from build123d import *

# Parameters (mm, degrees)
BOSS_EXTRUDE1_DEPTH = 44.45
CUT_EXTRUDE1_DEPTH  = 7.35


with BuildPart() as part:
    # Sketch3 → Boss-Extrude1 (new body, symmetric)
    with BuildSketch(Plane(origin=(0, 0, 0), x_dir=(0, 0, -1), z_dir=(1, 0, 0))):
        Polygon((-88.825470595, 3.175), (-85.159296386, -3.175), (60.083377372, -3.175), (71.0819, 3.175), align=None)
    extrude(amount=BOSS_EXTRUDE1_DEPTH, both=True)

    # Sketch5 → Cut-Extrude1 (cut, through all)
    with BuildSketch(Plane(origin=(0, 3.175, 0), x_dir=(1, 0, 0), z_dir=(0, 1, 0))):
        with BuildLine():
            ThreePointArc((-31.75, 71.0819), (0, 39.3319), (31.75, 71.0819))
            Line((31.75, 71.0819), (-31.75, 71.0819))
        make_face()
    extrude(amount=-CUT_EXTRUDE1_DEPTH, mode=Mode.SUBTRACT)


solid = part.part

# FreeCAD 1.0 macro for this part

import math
import FreeCAD as App
import Part
import Sketcher
Q = App.Units.Quantity

doc = App.newDocument("Part")
body = doc.addObject("PartDesign::Body", "Body")

# Sketch on YZ plane
sketch1 = doc.addObject("Sketcher::SketchObject", "Sketch")
body.addObject(sketch1)
sketch1.AttachmentSupport = (doc.YZ_Plane, [""])
sketch1.MapMode = "FlatFace"
sketch1.addGeometry([
    Part.LineSegment(App.Vector(3, 89, 0), App.Vector(-3, 85, 0)),
    Part.LineSegment(App.Vector(-3, 85, 0), App.Vector(-3, -60, 0)),
    Part.LineSegment(App.Vector(-3, -60, 0), App.Vector(3, -71, 0)),
    Part.LineSegment(App.Vector(3, -71, 0), App.Vector(3, 89, 0)),
], False)
sketch1.addConstraint([
    Sketcher.Constraint("Coincident", 0, 2, 1, 1),
    Sketcher.Constraint("Coincident", 1, 2, 2, 1),
    Sketcher.Constraint("Coincident", 2, 2, 3, 1),
    Sketcher.Constraint("Coincident", 3, 2, 0, 1),
    Sketcher.Constraint("Vertical", 1),
    Sketcher.Constraint("Vertical", 3),
    Sketcher.Constraint("Perpendicular", 0, 2),
    Sketcher.Constraint("Angle", 0, Q("-150 deg")),
    Sketcher.Constraint("Distance", 2, Q("0.5 in")),
    Sketcher.Constraint("DistanceX", 0, 2, -1, 1, Q("0.125 in")),
    Sketcher.Constraint("DistanceY", 2, 2, -1, 1, Q("2.7985 in")),
    Sketcher.Constraint("DistanceY", 3, 1, 3, 2, 159.907371),
])
pad1 = doc.addObject("PartDesign::Pad", "Pad")
body.addObject(pad1)
pad1.Profile = sketch1
pad1.Length = Q("3.5 in")
pad1.Midplane = True

# Sketch on XZ plane
sketch2 = doc.addObject("Sketcher::SketchObject", "Sketch001")
body.addObject(sketch2)
sketch2.AttachmentSupport = (doc.XZ_Plane, [""])
sketch2.MapMode = "FlatFace"
sketch2.AttachmentOffset = App.Placement(App.Vector(0, 0, -0.125 * 25.4), App.Rotation())
sketch2.addGeometry([
    Part.ArcOfCircle(Part.Circle(App.Vector(0, -71, 0), App.Vector(0, 0, 1), 32), math.radians(0), math.radians(180)),
    Part.LineSegment(App.Vector(32, -71, 0), App.Vector(-32, -71, 0)),
], False)
sketch2.addConstraint([
    Sketcher.Constraint("Coincident", 0, 1, 1, 1),
    Sketcher.Constraint("Coincident", 1, 2, 0, 2),
    Sketcher.Constraint("Horizontal", 1),
    Sketcher.Constraint("PointOnObject", 0, 3, -2),
    Sketcher.Constraint("Radius", 0, Q("1.25 in")),
    Sketcher.Constraint("DistanceY", 0, 3, -1, 1, Q("2.7985 in")),
    Sketcher.Constraint("DistanceY", 0, 1, -1, 1, Q("2.7985 in")),
])
pocket1 = doc.addObject("PartDesign::Pocket", "Pocket")
body.addObject(pocket1)
pocket1.Profile = sketch2
pocket1.Type = "ThroughAll"
pocket1.Reversed = True

doc.recompute()
